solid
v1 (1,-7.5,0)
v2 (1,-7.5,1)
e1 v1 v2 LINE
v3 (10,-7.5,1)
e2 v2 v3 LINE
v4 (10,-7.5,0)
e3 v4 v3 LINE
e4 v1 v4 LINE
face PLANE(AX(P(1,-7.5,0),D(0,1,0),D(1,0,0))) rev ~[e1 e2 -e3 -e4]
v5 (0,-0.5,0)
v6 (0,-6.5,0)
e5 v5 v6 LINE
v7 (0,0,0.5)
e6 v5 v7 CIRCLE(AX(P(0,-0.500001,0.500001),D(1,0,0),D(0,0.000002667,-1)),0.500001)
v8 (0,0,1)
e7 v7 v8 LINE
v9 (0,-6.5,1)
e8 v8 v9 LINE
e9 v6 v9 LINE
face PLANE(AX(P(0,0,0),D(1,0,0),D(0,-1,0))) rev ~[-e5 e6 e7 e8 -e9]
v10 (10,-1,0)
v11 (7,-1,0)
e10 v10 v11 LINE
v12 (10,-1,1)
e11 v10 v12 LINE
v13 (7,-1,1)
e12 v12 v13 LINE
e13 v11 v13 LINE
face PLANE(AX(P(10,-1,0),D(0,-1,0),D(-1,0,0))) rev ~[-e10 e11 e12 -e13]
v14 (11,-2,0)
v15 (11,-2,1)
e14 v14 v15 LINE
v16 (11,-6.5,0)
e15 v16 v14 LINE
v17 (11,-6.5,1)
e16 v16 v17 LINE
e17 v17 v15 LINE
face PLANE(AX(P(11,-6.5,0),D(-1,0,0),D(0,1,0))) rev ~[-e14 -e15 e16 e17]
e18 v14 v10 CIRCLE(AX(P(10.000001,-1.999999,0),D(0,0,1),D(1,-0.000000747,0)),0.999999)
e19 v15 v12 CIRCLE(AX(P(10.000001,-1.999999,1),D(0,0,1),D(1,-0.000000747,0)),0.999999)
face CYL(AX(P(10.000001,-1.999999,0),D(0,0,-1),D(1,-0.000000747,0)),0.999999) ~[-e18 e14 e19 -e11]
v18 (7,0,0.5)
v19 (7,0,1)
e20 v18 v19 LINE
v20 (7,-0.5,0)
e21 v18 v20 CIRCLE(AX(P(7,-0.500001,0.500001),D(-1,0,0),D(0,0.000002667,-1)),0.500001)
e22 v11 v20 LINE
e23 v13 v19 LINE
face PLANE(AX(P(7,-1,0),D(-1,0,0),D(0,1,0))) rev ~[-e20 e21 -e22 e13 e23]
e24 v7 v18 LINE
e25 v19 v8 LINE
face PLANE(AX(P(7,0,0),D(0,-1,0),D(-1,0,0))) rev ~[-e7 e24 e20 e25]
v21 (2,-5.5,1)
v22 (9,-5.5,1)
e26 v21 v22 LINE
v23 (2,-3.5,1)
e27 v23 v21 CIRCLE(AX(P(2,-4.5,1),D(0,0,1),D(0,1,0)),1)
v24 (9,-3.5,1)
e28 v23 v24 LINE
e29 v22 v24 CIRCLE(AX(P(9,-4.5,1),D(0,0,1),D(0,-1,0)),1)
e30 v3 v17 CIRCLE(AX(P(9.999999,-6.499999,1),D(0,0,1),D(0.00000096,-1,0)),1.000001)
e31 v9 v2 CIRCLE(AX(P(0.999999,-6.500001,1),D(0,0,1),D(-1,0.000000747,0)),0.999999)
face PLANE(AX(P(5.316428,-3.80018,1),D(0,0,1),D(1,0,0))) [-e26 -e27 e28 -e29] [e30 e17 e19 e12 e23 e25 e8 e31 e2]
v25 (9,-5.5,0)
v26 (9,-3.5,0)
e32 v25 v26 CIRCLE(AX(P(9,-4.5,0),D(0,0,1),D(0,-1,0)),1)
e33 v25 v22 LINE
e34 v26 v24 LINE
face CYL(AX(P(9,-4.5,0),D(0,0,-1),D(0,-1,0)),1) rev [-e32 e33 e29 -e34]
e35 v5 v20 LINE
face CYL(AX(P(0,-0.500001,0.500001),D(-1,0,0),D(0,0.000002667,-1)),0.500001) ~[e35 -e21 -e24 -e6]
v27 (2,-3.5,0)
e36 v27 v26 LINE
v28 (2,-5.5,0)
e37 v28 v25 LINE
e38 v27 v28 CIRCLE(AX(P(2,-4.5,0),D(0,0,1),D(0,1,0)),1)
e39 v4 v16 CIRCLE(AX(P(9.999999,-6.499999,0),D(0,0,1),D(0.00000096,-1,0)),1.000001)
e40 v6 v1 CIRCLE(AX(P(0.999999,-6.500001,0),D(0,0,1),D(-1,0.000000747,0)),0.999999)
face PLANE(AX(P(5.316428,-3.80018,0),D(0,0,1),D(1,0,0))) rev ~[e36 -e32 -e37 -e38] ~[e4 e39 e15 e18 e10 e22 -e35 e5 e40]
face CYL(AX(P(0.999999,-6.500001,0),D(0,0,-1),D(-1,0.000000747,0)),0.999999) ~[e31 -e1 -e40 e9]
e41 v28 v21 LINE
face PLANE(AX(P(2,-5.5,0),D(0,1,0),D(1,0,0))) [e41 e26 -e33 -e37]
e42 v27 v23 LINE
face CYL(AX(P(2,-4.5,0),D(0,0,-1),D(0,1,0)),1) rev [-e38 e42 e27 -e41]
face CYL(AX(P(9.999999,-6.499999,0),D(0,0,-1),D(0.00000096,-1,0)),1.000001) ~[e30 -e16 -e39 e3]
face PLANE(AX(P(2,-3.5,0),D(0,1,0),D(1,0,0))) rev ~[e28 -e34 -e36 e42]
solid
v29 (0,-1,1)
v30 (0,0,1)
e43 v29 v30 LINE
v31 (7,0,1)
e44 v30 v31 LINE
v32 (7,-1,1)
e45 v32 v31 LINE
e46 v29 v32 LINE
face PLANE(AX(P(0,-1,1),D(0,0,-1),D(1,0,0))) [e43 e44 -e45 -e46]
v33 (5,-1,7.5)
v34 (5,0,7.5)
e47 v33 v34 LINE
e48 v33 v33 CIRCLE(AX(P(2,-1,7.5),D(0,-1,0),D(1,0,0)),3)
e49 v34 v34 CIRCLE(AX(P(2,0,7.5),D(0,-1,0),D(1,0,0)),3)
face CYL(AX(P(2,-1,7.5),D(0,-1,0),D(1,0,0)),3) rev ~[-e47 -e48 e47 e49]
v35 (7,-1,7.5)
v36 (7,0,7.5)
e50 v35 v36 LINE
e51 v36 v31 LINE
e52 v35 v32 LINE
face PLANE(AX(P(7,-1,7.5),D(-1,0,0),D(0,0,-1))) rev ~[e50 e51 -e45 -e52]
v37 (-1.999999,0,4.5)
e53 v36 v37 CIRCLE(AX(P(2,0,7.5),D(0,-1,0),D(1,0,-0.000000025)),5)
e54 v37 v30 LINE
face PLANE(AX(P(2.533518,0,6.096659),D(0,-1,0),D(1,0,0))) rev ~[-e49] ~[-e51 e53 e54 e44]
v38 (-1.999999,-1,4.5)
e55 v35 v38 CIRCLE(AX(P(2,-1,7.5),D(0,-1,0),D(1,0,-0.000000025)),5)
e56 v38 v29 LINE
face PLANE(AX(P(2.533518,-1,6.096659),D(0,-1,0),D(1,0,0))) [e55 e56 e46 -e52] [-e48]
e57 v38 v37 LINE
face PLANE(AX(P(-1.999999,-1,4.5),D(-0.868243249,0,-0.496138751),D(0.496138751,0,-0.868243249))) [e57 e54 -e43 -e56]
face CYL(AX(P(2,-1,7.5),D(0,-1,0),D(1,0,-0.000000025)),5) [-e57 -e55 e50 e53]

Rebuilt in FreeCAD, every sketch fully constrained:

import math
import FreeCAD as App
import Part
import Sketcher

V = App.Vector

doc = App.newDocument("Part")
params = doc.addObject("Spreadsheet::Sheet", "Params")
for row, (alias, value) in enumerate([
    ("sketch1_radius", "1 mm"),
    ("sketch1_width", "7 mm"),
    ("pad1_length", "1 mm"),
    ("sketch2_radius", "0.500001 mm"),
    ("pad2_length", "15 mm"),
    ("sketch3_radius", "0.999999 mm"),
    ("sketch3_width", "9 mm"),
    ("sketch3_width2", "3 mm"),
    ("sketch3_height", "1 mm"),
    ("sketch3_height2", "4.5 mm"),
    ("pad3_length", "1 mm"),
    ("sketch4_diameter", "6 mm"),
    ("pad4_length", "1 mm"),
    ("sketch5_radius", "5 mm"),
    ("sketch5_width", "7 mm"),
    ("sketch5_height", "6.5 mm"),
    ("pad5_length", "1 mm"),
], start=1):
    params.set(f"A{row}", alias)
    params.set(f"B{row}", "=" + value)
    params.setAlias(f"B{row}", alias)

body = doc.addObject("PartDesign::Body", "Body")

sketch1 = body.newObject("Sketcher::SketchObject", "Sketch")
sketch1.AttachmentSupport = (doc.getObject("XY_Plane"), [""])
sketch1.MapMode = "FlatFace"
sketch1.addGeometry([
    Part.LineSegment(V(2, -5.5, 0), V(9, -5.5, 0)),
    Part.ArcOfCircle(Part.Circle(V(9, -4.5, 0), V(0, 0, 1), 1), math.radians(-90), math.radians(90)),
    Part.LineSegment(V(9, -3.5, 0), V(2, -3.5, 0)),
    Part.ArcOfCircle(Part.Circle(V(2, -4.5, 0), V(0, 0, 1), 1), math.radians(90), math.radians(270)),
], False)
sketch1.addConstraint([
    Sketcher.Constraint("Tangent", 0, 2, 1, 1),
    Sketcher.Constraint("Tangent", 1, 2, 2, 1),
    Sketcher.Constraint("Tangent", 2, 2, 3, 1),
    Sketcher.Constraint("Tangent", 3, 2, 0, 1),
    Sketcher.Constraint("Horizontal", 0),
    Sketcher.Constraint("Horizontal", 2),
    Sketcher.Constraint("Radius", 1, 1.0),
    Sketcher.Constraint("DistanceX", 0, 1, 0, 2, 7.0),
    Sketcher.Constraint("DistanceX", -1, 1, 1, 3, 9.0),
    Sketcher.Constraint("DistanceY", 1, 3, -1, 1, 4.5),
])
sketch1.setExpression("Constraints[6]", "Params.sketch1_radius")
sketch1.setExpression("Constraints[7]", "Params.sketch1_width")
pad1 = body.newObject("PartDesign::Pad", "Pad")
pad1.Profile = sketch1
pad1.setExpression("Length", "Params.pad1_length")
body2 = doc.addObject("PartDesign::Body", "Body001")

sketch2 = body2.newObject("Sketcher::SketchObject", "Sketch001")
sketch2.AttachmentSupport = (doc.getObject("YZ_Plane001"), [""])
sketch2.MapMode = "FlatFace"
sketch2.addGeometry([
    Part.ArcOfCircle(Part.Circle(V(-0.5, 0.5, 0), V(0, 0, 1), 0.5), math.radians(-90), math.radians(0)),
    Part.LineSegment(V(-0.5, 0, 0), V(0, 0, 0)),
    Part.LineSegment(V(0, 0, 0), V(0, 0.5, 0)),
], False)
sketch2.addConstraint([
    Sketcher.Constraint("Coincident", 0, 1, 1, 1),
    Sketcher.Constraint("Coincident", 1, 2, 2, 1),
    Sketcher.Constraint("Coincident", 2, 2, 0, 2),
    Sketcher.Constraint("Horizontal", 1),
    Sketcher.Constraint("Vertical", 2),
    Sketcher.Constraint("Coincident", 1, 2, -1, 1),
    Sketcher.Constraint("Horizontal", 0, 3, 2, 2),
    Sketcher.Constraint("Equal", 1, 2),
    Sketcher.Constraint("Radius", 0, 0.500001),
])
sketch2.setExpression("Constraints[8]", "Params.sketch2_radius")
pad2 = body2.newObject("PartDesign::Pad", "Pad001")
pad2.Profile = sketch2
pad2.setExpression("Length", "Params.pad2_length")
body3 = doc.addObject("PartDesign::Body", "Body002")

sketch3 = body3.newObject("Sketcher::SketchObject", "Sketch002")
sketch3.AttachmentSupport = (doc.getObject("XY_Plane002"), [""])
sketch3.MapMode = "FlatFace"
sketch3.addGeometry([
    Part.ArcOfCircle(Part.Circle(V(1, -6.5, 0), V(0, 0, 1), 1), math.radians(180), math.radians(270)),
    Part.LineSegment(V(1, -7.5, 0), V(10, -7.5, 0)),
    Part.ArcOfCircle(Part.Circle(V(10, -6.5, 0), V(0, 0, 1), 1), math.radians(-90), math.radians(0)),
    Part.LineSegment(V(11, -6.5, 0), V(11, -2, 0)),
    Part.ArcOfCircle(Part.Circle(V(10, -2, 0), V(0, 0, 1), 1), math.radians(0), math.radians(90)),
    Part.LineSegment(V(10, -1, 0), V(7, -1, 0)),
    Part.LineSegment(V(7, -1, 0), V(7, 0, 0)),
    Part.LineSegment(V(7, 0, 0), V(0, 0, 0)),
    Part.LineSegment(V(0, 0, 0), V(0, -6.5, 0)),
], False)
sketch3.addConstraint([
    Sketcher.Constraint("Tangent", 0, 2, 1, 1),
    Sketcher.Constraint("Tangent", 1, 2, 2, 1),
    Sketcher.Constraint("Tangent", 2, 2, 3, 1),
    Sketcher.Constraint("Tangent", 3, 2, 4, 1),
    Sketcher.Constraint("Tangent", 4, 2, 5, 1),
    Sketcher.Constraint("Coincident", 5, 2, 6, 1),
    Sketcher.Constraint("Coincident", 6, 2, 7, 1),
    Sketcher.Constraint("Coincident", 7, 2, 8, 1),
    Sketcher.Constraint("Tangent", 8, 2, 0, 1),
    Sketcher.Constraint("Horizontal", 1),
    Sketcher.Constraint("Vertical", 3),
    Sketcher.Constraint("Horizontal", 5),
    Sketcher.Constraint("Vertical", 6),
    Sketcher.Constraint("Horizontal", 7),
    Sketcher.Constraint("Vertical", 8),
    Sketcher.Constraint("Coincident", 7, 2, -1, 1),
    Sketcher.Constraint("Equal", 0, 2),
    Sketcher.Constraint("Equal", 2, 4),
    Sketcher.Constraint("Radius", 0, 0.999999),
    Sketcher.Constraint("DistanceX", 1, 1, 1, 2, 9.0),
    Sketcher.Constraint("DistanceX", 5, 2, 5, 1, 3.0),
    Sketcher.Constraint("DistanceY", 6, 1, 6, 2, 1.0),
    Sketcher.Constraint("DistanceY", 3, 1, 3, 2, 4.5),
])
sketch3.setExpression("Constraints[18]", "Params.sketch3_radius")
sketch3.setExpression("Constraints[19]", "Params.sketch3_width")
sketch3.setExpression("Constraints[20]", "Params.sketch3_width2")
sketch3.setExpression("Constraints[21]", "Params.sketch3_height")
sketch3.setExpression("Constraints[22]", "Params.sketch3_height2")
pad3 = body3.newObject("PartDesign::Pad", "Pad002")
pad3.Profile = sketch3
pad3.setExpression("Length", "Params.pad3_length")
doc.recompute()

boolean = body3.newObject("PartDesign::Boolean", "Boolean")
boolean.Type = "Cut"
boolean.addObjects([body2])
doc.recompute()

boolean2 = body3.newObject("PartDesign::Boolean", "Boolean001")
boolean2.Type = "Cut"
boolean2.addObjects([body])
body4 = doc.addObject("PartDesign::Body", "Body003")

sketch4 = body4.newObject("Sketcher::SketchObject", "Sketch003")
sketch4.AttachmentSupport = (doc.getObject("XY_Plane003"), [""])
sketch4.MapMode = "FlatFace"
sketch4.addGeometry(Part.Circle(V(2, 8, 0), V(0, 0, 1), 3), False)
sketch4.addConstraint([
    Sketcher.Constraint("Diameter", 0, 6.0),
    Sketcher.Constraint("DistanceX", -1, 1, 0, 3, 2.0),
    Sketcher.Constraint("DistanceY", -1, 1, 0, 3, 8.0),
])
sketch4.setExpression("Constraints[0]", "Params.sketch4_diameter")
pad4 = body4.newObject("PartDesign::Pad", "Pad003")
pad4.Profile = sketch4
pad4.setExpression("Length", "Params.pad4_length")
pad4.Reversed = True
body5 = doc.addObject("PartDesign::Body", "Body004")
doc.recompute()

body4.Placement = App.Placement(V(0, 0, 0), App.Rotation(V(1, 0, 0), 90))
boolean3 = body5.newObject("PartDesign::Boolean", "Boolean002")
boolean3.Type = "Fuse"
boolean3.addObjects([body4])
body6 = doc.addObject("PartDesign::Body", "Body005")
doc.recompute()

body5.Placement = App.Placement(V(0, -1, -0.5), App.Rotation(V(0, 0, 1), 0))
boolean4 = body6.newObject("PartDesign::Boolean", "Boolean003")
boolean4.Type = "Fuse"
boolean4.addObjects([body5])
body7 = doc.addObject("PartDesign::Body", "Body006")

sketch5 = body7.newObject("Sketcher::SketchObject", "Sketch004")
sketch5.AttachmentSupport = (doc.getObject("XY_Plane006"), [""])
sketch5.MapMode = "FlatFace"
sketch5.addGeometry([
    Part.ArcOfCircle(Part.Circle(V(2, 8, 0), V(0, 0, 1), 5), math.radians(0), math.radians(217)),
    Part.LineSegment(V(-2, 5, 0), V(0, 1.5, 0)),
    Part.LineSegment(V(0, 1.5, 0), V(7, 1.5, 0)),
    Part.LineSegment(V(7, 1.5, 0), V(7, 8, 0)),
], False)
sketch5.addConstraint([
    Sketcher.Constraint("Coincident", 0, 2, 1, 1),
    Sketcher.Constraint("Coincident", 1, 2, 2, 1),
    Sketcher.Constraint("Coincident", 2, 2, 3, 1),
    Sketcher.Constraint("Tangent", 3, 2, 0, 1),
    Sketcher.Constraint("Horizontal", 2),
    Sketcher.Constraint("Vertical", 3),
    Sketcher.Constraint("PointOnObject", 1, 2, -2),
    Sketcher.Constraint("Radius", 0, 5.0),
    Sketcher.Constraint("DistanceX", 2, 1, 2, 2, 7.0),
    Sketcher.Constraint("DistanceY", 3, 1, 3, 2, 6.5),
    Sketcher.Constraint("DistanceY", -1, 1, 0, 3, 8.0),
    Sketcher.Constraint("DistanceX", 0, 2, -1, 1, 1.999999),
])
sketch5.setExpression("Constraints[7]", "Params.sketch5_radius")
sketch5.setExpression("Constraints[8]", "Params.sketch5_width")
sketch5.setExpression("Constraints[9]", "Params.sketch5_height")
pad5 = body7.newObject("PartDesign::Pad", "Pad004")
pad5.Profile = sketch5
pad5.setExpression("Length", "Params.pad5_length")
pad5.Reversed = True
body8 = doc.addObject("PartDesign::Body", "Body007")
doc.recompute()

body7.Placement = App.Placement(V(0, 0, 0), App.Rotation(V(1, 0, 0), 90))
boolean5 = body8.newObject("PartDesign::Boolean", "Boolean004")
boolean5.Type = "Fuse"
boolean5.addObjects([body7])
body9 = doc.addObject("PartDesign::Body", "Body008")
doc.recompute()

body8.Placement = App.Placement(V(0, -1, -0.5), App.Rotation(V(0, 0, 1), 0))
boolean6 = body9.newObject("PartDesign::Boolean", "Boolean005")
boolean6.Type = "Fuse"
boolean6.addObjects([body8])
doc.recompute()

boolean7 = body9.newObject("PartDesign::Boolean", "Boolean006")
boolean7.Type = "Cut"
boolean7.addObjects([body6])

doc.recompute()
